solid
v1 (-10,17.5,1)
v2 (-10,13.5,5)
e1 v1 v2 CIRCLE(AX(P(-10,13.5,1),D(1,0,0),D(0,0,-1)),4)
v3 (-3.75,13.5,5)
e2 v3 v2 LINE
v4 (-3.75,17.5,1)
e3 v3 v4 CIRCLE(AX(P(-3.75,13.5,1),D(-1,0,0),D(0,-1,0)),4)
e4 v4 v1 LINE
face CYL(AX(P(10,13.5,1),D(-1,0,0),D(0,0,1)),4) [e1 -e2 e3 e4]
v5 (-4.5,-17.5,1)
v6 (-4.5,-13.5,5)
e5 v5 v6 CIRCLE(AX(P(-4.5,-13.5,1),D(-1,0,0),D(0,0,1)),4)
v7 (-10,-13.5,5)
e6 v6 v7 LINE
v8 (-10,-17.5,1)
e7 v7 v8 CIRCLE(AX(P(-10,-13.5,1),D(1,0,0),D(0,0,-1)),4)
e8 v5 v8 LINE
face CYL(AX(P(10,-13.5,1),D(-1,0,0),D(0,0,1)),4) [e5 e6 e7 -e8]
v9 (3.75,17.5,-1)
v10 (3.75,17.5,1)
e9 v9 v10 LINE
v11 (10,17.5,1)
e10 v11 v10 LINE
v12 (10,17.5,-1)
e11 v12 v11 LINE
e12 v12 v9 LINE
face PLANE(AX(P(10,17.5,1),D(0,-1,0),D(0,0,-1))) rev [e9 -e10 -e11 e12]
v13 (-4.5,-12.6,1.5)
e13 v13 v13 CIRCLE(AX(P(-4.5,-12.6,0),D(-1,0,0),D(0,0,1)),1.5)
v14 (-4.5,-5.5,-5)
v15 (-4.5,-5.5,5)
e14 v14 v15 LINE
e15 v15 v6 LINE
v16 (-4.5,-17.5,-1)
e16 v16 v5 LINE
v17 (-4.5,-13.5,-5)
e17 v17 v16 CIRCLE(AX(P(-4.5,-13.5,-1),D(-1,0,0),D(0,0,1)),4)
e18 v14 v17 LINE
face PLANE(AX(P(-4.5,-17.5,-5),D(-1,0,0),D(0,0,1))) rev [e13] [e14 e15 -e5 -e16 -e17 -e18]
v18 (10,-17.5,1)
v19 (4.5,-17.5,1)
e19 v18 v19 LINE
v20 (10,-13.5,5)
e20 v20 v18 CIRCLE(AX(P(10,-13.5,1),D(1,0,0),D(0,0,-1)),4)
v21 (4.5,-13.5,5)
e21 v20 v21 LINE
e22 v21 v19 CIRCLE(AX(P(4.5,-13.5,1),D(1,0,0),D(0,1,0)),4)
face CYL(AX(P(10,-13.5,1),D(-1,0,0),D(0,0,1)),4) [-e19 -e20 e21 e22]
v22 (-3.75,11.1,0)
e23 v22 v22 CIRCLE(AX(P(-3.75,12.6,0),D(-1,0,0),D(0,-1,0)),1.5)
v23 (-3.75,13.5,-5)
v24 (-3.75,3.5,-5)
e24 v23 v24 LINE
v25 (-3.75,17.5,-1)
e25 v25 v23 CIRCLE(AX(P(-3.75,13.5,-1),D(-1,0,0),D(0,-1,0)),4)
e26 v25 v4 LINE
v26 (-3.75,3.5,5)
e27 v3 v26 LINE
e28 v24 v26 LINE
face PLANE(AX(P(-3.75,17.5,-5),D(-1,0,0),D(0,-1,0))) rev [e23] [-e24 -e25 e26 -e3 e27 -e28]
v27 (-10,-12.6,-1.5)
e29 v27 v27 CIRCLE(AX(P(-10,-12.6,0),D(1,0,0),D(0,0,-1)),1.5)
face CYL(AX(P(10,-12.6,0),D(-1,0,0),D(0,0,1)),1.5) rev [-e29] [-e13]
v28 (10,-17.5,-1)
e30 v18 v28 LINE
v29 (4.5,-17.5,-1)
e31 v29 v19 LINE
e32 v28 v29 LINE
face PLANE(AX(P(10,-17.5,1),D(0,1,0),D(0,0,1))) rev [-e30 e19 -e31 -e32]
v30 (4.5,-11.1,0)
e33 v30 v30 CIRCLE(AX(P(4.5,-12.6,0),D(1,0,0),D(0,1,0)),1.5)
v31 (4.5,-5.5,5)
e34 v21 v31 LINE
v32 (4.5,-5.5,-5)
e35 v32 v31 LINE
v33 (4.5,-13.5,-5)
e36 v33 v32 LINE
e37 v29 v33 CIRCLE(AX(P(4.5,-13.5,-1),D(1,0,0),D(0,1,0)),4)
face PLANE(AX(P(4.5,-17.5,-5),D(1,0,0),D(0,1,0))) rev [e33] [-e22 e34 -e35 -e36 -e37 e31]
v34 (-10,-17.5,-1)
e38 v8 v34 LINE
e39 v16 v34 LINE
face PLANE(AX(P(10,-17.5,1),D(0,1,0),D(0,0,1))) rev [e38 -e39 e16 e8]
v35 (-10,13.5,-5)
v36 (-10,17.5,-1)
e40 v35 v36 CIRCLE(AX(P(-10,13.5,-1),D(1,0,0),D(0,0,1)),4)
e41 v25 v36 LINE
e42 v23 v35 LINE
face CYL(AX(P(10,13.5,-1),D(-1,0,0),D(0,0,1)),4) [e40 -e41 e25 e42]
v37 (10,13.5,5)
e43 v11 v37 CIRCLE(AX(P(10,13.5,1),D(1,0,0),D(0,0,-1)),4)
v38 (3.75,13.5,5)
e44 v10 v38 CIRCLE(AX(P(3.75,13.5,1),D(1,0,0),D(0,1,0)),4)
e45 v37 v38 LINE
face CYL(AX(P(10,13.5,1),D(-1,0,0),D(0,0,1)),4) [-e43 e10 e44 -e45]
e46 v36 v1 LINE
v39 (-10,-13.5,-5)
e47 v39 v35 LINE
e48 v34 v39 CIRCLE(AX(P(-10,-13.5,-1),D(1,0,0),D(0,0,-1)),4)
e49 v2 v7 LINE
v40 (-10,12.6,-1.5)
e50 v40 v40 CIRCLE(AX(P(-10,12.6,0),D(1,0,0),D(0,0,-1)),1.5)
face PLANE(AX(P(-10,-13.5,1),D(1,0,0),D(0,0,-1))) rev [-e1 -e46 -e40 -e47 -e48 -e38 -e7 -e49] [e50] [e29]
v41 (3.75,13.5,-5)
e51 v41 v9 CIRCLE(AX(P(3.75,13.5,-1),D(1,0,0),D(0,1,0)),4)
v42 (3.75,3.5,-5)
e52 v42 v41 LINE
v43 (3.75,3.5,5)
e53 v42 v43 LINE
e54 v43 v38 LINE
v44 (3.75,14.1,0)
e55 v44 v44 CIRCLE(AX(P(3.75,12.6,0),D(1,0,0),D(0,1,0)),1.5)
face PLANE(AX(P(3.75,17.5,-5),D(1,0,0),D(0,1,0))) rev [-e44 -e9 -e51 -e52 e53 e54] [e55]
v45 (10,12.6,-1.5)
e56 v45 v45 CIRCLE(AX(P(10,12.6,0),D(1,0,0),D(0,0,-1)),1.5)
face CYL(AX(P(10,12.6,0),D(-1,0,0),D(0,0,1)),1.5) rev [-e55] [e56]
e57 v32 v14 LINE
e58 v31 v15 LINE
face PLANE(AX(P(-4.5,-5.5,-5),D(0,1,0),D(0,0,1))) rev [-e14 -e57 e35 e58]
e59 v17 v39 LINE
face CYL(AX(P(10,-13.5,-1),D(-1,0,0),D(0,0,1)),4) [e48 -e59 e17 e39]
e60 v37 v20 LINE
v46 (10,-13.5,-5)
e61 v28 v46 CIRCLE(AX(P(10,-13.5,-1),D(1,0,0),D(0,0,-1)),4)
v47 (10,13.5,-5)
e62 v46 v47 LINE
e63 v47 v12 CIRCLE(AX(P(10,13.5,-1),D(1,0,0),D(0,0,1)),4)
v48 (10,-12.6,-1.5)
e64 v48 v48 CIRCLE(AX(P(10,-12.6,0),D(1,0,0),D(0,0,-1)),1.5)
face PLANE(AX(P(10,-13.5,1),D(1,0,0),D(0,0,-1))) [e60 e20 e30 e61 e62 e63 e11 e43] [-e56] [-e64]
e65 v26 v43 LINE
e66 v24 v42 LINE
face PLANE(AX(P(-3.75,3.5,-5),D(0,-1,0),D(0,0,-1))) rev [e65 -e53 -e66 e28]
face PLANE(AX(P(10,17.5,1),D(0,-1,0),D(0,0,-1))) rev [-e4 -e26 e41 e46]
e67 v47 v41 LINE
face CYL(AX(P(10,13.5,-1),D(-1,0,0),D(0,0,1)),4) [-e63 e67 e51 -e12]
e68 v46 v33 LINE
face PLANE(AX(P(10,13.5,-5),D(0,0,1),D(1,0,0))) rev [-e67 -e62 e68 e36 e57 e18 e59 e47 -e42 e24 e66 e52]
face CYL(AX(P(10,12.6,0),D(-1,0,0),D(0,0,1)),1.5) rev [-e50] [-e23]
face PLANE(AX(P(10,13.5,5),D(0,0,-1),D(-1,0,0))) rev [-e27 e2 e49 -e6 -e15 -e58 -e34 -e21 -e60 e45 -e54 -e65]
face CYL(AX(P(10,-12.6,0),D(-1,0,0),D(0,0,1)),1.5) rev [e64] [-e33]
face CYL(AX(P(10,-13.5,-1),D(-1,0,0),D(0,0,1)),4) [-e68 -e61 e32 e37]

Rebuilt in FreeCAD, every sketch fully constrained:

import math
import FreeCAD as App
import Part
import Sketcher
from FreeCAD import Vector

doc = App.newDocument("Part")
params = doc.addObject("Spreadsheet::Sheet", "Params")
for row, (alias, value) in enumerate([
    ("sketch1_diameter", "3 mm"),
    ("sketch1_radius", "4 mm"),
    ("sketch1_width", "27 mm"),
    ("sketch1_height", "2 mm"),
    ("pad1_length", "20 mm"),
    ("sketch2_width", "9 mm"),
    ("sketch2_height", "12 mm"),
    ("sketch2_height2", "14 mm"),
    ("sketch2_width2", "7.5 mm"),
], start=1):
    params.set(f"A{row}", alias)
    params.set(f"B{row}", "=" + value)
    params.setAlias(f"B{row}", alias)

body = doc.addObject("PartDesign::Body", "Body")

# Sketch on YZ plane
sketch1 = body.newObject("Sketcher::SketchObject", "Sketch")
sketch1.AttachmentSupport = (doc.getObject("YZ_Plane"), [""])
sketch1.MapMode = "FlatFace"
sketch1.addGeometry(Part.LineSegment(Vector(17.5, -1, 0), Vector(17.5, 1, 0)), False)
sketch1.addGeometry(Part.ArcOfCircle(Part.Circle(Vector(13.5, 1, 0), Vector(0, 0, 1), 4), math.radians(0), math.radians(90)), False)
sketch1.addGeometry(Part.LineSegment(Vector(13.5, 5, 0), Vector(-13.5, 5, 0)), False)
sketch1.addGeometry(Part.ArcOfCircle(Part.Circle(Vector(-13.5, 1, 0), Vector(0, 0, 1), 4), math.radians(90), math.radians(180)), False)
sketch1.addGeometry(Part.LineSegment(Vector(-17.5, 1, 0), Vector(-17.5, -1, 0)), False)
sketch1.addGeometry(Part.ArcOfCircle(Part.Circle(Vector(-13.5, -1, 0), Vector(0, 0, 1), 4), math.radians(180), math.radians(270)), False)
sketch1.addGeometry(Part.LineSegment(Vector(-13.5, -5, 0), Vector(13.5, -5, 0)), False)
sketch1.addGeometry(Part.ArcOfCircle(Part.Circle(Vector(13.5, -1, 0), Vector(0, 0, 1), 4), math.radians(-90), math.radians(0)), False)
sketch1.addGeometry(Part.Circle(Vector(-12.6, 0, 0), Vector(0, 0, 1), 1.5), False)
sketch1.addGeometry(Part.Circle(Vector(12.6, 0, 0), Vector(0, 0, 1), 1.5), False)
sketch1.addConstraint(Sketcher.Constraint("Tangent", 0, 2, 1, 1))
sketch1.addConstraint(Sketcher.Constraint("Tangent", 1, 2, 2, 1))
sketch1.addConstraint(Sketcher.Constraint("Tangent", 2, 2, 3, 1))
sketch1.addConstraint(Sketcher.Constraint("Tangent", 3, 2, 4, 1))
sketch1.addConstraint(Sketcher.Constraint("Tangent", 4, 2, 5, 1))
sketch1.addConstraint(Sketcher.Constraint("Tangent", 5, 2, 6, 1))
sketch1.addConstraint(Sketcher.Constraint("Tangent", 6, 2, 7, 1))
sketch1.addConstraint(Sketcher.Constraint("Tangent", 7, 2, 0, 1))
sketch1.addConstraint(Sketcher.Constraint("Vertical", 0))
sketch1.addConstraint(Sketcher.Constraint("Horizontal", 2))
sketch1.addConstraint(Sketcher.Constraint("Vertical", 4))
sketch1.addConstraint(Sketcher.Constraint("Horizontal", 6))
sketch1.addConstraint(Sketcher.Constraint("Equal", 1, 3))
sketch1.addConstraint(Sketcher.Constraint("Equal", 3, 5))
sketch1.addConstraint(Sketcher.Constraint("Equal", 5, 7))
sketch1.addConstraint(Sketcher.Constraint("Equal", 8, 9))
sketch1.addConstraint(Sketcher.Constraint("Symmetric", 1, 3, 5, 3, -1, 1))
sketch1.addConstraint(Sketcher.Constraint("Symmetric", 8, 3, 9, 3, -1, 1))
sketch1.addConstraint(Sketcher.Constraint("PointOnObject", 8, 3, -1))
sketch1.addConstraint(Sketcher.Constraint("Diameter", 8, 3.0))
sketch1.addConstraint(Sketcher.Constraint("Radius", 1, 4.0))
sketch1.addConstraint(Sketcher.Constraint("DistanceX", 2, 2, 2, 1, 27.0))
sketch1.addConstraint(Sketcher.Constraint("DistanceY", 0, 1, 0, 2, 2.0))
sketch1.addConstraint(Sketcher.Constraint("DistanceX", 8, 3, -1, 1, 12.6))
sketch1.setExpression("Constraints[19]", "Params.sketch1_diameter")
sketch1.setExpression("Constraints[20]", "Params.sketch1_radius")
sketch1.setExpression("Constraints[21]", "Params.sketch1_width")
sketch1.setExpression("Constraints[22]", "Params.sketch1_height")
pad1 = body.newObject("PartDesign::Pad", "Pad")
pad1.Profile = sketch1
pad1.setExpression("Length", "Params.pad1_length")
pad1.Midplane = True

# Sketch on XY plane
sketch2 = body.newObject("Sketcher::SketchObject", "Sketch001")
sketch2.AttachmentSupport = (doc.getObject("XY_Plane"), [""])
sketch2.MapMode = "FlatFace"
sketch2.addGeometry(Part.LineSegment(Vector(-4, -6, 0), Vector(-4, -18, 0)), False)
sketch2.addGeometry(Part.LineSegment(Vector(-4, -18, 0), Vector(4, -18, 0)), False)
sketch2.addGeometry(Part.LineSegment(Vector(4, -18, 0), Vector(4, -6, 0)), False)
sketch2.addGeometry(Part.LineSegment(Vector(4, -6, 0), Vector(-4, -6, 0)), False)
sketch2.addGeometry(Part.LineSegment(Vector(-4, 18, 0), Vector(-4, 4, 0)), False)
sketch2.addGeometry(Part.LineSegment(Vector(-4, 4, 0), Vector(4, 4, 0)), False)
sketch2.addGeometry(Part.LineSegment(Vector(4, 4, 0), Vector(4, 18, 0)), False)
sketch2.addGeometry(Part.LineSegment(Vector(4, 18, 0), Vector(-4, 18, 0)), False)
sketch2.addConstraint(Sketcher.Constraint("Coincident", 0, 2, 1, 1))
sketch2.addConstraint(Sketcher.Constraint("Coincident", 1, 2, 2, 1))
sketch2.addConstraint(Sketcher.Constraint("Coincident", 2, 2, 3, 1))
sketch2.addConstraint(Sketcher.Constraint("Coincident", 3, 2, 0, 1))
sketch2.addConstraint(Sketcher.Constraint("Coincident", 4, 2, 5, 1))
sketch2.addConstraint(Sketcher.Constraint("Coincident", 5, 2, 6, 1))
sketch2.addConstraint(Sketcher.Constraint("Coincident", 6, 2, 7, 1))
sketch2.addConstraint(Sketcher.Constraint("Coincident", 7, 2, 4, 1))
sketch2.addConstraint(Sketcher.Constraint("Vertical", 0))
sketch2.addConstraint(Sketcher.Constraint("Horizontal", 1))
sketch2.addConstraint(Sketcher.Constraint("Vertical", 2))
sketch2.addConstraint(Sketcher.Constraint("Horizontal", 3))
sketch2.addConstraint(Sketcher.Constraint("Vertical", 4))
sketch2.addConstraint(Sketcher.Constraint("Horizontal", 5))
sketch2.addConstraint(Sketcher.Constraint("Vertical", 6))
sketch2.addConstraint(Sketcher.Constraint("Horizontal", 7))
sketch2.addConstraint(Sketcher.Constraint("DistanceX", 1, 1, 1, 2, 9.0))
sketch2.addConstraint(Sketcher.Constraint("DistanceY", 0, 2, 0, 1, 12.0))
sketch2.addConstraint(Sketcher.Constraint("DistanceY", 4, 2, 4, 1, 14.0))
sketch2.addConstraint(Sketcher.Constraint("DistanceX", 5, 1, 5, 2, 7.5))
sketch2.addConstraint(Sketcher.Constraint("DistanceY", 3, 2, 4, 2, 9.0))
sketch2.addConstraint(Sketcher.Constraint("DistanceX", 0, 2, -1, 1, 4.5))
sketch2.addConstraint(Sketcher.Constraint("DistanceY", 0, 2, -1, 1, 17.5))
sketch2.addConstraint(Sketcher.Constraint("DistanceX", 4, 2, -1, 1, 3.75))
sketch2.setExpression("Constraints[16]", "Params.sketch2_width")
sketch2.setExpression("Constraints[17]", "Params.sketch2_height")
sketch2.setExpression("Constraints[18]", "Params.sketch2_height2")
sketch2.setExpression("Constraints[19]", "Params.sketch2_width2")
pocket1 = body.newObject("PartDesign::Pocket", "Pocket")
pocket1.Profile = sketch2
pocket1.Type = "ThroughAll"
pocket1.Midplane = True

doc.recompute()
